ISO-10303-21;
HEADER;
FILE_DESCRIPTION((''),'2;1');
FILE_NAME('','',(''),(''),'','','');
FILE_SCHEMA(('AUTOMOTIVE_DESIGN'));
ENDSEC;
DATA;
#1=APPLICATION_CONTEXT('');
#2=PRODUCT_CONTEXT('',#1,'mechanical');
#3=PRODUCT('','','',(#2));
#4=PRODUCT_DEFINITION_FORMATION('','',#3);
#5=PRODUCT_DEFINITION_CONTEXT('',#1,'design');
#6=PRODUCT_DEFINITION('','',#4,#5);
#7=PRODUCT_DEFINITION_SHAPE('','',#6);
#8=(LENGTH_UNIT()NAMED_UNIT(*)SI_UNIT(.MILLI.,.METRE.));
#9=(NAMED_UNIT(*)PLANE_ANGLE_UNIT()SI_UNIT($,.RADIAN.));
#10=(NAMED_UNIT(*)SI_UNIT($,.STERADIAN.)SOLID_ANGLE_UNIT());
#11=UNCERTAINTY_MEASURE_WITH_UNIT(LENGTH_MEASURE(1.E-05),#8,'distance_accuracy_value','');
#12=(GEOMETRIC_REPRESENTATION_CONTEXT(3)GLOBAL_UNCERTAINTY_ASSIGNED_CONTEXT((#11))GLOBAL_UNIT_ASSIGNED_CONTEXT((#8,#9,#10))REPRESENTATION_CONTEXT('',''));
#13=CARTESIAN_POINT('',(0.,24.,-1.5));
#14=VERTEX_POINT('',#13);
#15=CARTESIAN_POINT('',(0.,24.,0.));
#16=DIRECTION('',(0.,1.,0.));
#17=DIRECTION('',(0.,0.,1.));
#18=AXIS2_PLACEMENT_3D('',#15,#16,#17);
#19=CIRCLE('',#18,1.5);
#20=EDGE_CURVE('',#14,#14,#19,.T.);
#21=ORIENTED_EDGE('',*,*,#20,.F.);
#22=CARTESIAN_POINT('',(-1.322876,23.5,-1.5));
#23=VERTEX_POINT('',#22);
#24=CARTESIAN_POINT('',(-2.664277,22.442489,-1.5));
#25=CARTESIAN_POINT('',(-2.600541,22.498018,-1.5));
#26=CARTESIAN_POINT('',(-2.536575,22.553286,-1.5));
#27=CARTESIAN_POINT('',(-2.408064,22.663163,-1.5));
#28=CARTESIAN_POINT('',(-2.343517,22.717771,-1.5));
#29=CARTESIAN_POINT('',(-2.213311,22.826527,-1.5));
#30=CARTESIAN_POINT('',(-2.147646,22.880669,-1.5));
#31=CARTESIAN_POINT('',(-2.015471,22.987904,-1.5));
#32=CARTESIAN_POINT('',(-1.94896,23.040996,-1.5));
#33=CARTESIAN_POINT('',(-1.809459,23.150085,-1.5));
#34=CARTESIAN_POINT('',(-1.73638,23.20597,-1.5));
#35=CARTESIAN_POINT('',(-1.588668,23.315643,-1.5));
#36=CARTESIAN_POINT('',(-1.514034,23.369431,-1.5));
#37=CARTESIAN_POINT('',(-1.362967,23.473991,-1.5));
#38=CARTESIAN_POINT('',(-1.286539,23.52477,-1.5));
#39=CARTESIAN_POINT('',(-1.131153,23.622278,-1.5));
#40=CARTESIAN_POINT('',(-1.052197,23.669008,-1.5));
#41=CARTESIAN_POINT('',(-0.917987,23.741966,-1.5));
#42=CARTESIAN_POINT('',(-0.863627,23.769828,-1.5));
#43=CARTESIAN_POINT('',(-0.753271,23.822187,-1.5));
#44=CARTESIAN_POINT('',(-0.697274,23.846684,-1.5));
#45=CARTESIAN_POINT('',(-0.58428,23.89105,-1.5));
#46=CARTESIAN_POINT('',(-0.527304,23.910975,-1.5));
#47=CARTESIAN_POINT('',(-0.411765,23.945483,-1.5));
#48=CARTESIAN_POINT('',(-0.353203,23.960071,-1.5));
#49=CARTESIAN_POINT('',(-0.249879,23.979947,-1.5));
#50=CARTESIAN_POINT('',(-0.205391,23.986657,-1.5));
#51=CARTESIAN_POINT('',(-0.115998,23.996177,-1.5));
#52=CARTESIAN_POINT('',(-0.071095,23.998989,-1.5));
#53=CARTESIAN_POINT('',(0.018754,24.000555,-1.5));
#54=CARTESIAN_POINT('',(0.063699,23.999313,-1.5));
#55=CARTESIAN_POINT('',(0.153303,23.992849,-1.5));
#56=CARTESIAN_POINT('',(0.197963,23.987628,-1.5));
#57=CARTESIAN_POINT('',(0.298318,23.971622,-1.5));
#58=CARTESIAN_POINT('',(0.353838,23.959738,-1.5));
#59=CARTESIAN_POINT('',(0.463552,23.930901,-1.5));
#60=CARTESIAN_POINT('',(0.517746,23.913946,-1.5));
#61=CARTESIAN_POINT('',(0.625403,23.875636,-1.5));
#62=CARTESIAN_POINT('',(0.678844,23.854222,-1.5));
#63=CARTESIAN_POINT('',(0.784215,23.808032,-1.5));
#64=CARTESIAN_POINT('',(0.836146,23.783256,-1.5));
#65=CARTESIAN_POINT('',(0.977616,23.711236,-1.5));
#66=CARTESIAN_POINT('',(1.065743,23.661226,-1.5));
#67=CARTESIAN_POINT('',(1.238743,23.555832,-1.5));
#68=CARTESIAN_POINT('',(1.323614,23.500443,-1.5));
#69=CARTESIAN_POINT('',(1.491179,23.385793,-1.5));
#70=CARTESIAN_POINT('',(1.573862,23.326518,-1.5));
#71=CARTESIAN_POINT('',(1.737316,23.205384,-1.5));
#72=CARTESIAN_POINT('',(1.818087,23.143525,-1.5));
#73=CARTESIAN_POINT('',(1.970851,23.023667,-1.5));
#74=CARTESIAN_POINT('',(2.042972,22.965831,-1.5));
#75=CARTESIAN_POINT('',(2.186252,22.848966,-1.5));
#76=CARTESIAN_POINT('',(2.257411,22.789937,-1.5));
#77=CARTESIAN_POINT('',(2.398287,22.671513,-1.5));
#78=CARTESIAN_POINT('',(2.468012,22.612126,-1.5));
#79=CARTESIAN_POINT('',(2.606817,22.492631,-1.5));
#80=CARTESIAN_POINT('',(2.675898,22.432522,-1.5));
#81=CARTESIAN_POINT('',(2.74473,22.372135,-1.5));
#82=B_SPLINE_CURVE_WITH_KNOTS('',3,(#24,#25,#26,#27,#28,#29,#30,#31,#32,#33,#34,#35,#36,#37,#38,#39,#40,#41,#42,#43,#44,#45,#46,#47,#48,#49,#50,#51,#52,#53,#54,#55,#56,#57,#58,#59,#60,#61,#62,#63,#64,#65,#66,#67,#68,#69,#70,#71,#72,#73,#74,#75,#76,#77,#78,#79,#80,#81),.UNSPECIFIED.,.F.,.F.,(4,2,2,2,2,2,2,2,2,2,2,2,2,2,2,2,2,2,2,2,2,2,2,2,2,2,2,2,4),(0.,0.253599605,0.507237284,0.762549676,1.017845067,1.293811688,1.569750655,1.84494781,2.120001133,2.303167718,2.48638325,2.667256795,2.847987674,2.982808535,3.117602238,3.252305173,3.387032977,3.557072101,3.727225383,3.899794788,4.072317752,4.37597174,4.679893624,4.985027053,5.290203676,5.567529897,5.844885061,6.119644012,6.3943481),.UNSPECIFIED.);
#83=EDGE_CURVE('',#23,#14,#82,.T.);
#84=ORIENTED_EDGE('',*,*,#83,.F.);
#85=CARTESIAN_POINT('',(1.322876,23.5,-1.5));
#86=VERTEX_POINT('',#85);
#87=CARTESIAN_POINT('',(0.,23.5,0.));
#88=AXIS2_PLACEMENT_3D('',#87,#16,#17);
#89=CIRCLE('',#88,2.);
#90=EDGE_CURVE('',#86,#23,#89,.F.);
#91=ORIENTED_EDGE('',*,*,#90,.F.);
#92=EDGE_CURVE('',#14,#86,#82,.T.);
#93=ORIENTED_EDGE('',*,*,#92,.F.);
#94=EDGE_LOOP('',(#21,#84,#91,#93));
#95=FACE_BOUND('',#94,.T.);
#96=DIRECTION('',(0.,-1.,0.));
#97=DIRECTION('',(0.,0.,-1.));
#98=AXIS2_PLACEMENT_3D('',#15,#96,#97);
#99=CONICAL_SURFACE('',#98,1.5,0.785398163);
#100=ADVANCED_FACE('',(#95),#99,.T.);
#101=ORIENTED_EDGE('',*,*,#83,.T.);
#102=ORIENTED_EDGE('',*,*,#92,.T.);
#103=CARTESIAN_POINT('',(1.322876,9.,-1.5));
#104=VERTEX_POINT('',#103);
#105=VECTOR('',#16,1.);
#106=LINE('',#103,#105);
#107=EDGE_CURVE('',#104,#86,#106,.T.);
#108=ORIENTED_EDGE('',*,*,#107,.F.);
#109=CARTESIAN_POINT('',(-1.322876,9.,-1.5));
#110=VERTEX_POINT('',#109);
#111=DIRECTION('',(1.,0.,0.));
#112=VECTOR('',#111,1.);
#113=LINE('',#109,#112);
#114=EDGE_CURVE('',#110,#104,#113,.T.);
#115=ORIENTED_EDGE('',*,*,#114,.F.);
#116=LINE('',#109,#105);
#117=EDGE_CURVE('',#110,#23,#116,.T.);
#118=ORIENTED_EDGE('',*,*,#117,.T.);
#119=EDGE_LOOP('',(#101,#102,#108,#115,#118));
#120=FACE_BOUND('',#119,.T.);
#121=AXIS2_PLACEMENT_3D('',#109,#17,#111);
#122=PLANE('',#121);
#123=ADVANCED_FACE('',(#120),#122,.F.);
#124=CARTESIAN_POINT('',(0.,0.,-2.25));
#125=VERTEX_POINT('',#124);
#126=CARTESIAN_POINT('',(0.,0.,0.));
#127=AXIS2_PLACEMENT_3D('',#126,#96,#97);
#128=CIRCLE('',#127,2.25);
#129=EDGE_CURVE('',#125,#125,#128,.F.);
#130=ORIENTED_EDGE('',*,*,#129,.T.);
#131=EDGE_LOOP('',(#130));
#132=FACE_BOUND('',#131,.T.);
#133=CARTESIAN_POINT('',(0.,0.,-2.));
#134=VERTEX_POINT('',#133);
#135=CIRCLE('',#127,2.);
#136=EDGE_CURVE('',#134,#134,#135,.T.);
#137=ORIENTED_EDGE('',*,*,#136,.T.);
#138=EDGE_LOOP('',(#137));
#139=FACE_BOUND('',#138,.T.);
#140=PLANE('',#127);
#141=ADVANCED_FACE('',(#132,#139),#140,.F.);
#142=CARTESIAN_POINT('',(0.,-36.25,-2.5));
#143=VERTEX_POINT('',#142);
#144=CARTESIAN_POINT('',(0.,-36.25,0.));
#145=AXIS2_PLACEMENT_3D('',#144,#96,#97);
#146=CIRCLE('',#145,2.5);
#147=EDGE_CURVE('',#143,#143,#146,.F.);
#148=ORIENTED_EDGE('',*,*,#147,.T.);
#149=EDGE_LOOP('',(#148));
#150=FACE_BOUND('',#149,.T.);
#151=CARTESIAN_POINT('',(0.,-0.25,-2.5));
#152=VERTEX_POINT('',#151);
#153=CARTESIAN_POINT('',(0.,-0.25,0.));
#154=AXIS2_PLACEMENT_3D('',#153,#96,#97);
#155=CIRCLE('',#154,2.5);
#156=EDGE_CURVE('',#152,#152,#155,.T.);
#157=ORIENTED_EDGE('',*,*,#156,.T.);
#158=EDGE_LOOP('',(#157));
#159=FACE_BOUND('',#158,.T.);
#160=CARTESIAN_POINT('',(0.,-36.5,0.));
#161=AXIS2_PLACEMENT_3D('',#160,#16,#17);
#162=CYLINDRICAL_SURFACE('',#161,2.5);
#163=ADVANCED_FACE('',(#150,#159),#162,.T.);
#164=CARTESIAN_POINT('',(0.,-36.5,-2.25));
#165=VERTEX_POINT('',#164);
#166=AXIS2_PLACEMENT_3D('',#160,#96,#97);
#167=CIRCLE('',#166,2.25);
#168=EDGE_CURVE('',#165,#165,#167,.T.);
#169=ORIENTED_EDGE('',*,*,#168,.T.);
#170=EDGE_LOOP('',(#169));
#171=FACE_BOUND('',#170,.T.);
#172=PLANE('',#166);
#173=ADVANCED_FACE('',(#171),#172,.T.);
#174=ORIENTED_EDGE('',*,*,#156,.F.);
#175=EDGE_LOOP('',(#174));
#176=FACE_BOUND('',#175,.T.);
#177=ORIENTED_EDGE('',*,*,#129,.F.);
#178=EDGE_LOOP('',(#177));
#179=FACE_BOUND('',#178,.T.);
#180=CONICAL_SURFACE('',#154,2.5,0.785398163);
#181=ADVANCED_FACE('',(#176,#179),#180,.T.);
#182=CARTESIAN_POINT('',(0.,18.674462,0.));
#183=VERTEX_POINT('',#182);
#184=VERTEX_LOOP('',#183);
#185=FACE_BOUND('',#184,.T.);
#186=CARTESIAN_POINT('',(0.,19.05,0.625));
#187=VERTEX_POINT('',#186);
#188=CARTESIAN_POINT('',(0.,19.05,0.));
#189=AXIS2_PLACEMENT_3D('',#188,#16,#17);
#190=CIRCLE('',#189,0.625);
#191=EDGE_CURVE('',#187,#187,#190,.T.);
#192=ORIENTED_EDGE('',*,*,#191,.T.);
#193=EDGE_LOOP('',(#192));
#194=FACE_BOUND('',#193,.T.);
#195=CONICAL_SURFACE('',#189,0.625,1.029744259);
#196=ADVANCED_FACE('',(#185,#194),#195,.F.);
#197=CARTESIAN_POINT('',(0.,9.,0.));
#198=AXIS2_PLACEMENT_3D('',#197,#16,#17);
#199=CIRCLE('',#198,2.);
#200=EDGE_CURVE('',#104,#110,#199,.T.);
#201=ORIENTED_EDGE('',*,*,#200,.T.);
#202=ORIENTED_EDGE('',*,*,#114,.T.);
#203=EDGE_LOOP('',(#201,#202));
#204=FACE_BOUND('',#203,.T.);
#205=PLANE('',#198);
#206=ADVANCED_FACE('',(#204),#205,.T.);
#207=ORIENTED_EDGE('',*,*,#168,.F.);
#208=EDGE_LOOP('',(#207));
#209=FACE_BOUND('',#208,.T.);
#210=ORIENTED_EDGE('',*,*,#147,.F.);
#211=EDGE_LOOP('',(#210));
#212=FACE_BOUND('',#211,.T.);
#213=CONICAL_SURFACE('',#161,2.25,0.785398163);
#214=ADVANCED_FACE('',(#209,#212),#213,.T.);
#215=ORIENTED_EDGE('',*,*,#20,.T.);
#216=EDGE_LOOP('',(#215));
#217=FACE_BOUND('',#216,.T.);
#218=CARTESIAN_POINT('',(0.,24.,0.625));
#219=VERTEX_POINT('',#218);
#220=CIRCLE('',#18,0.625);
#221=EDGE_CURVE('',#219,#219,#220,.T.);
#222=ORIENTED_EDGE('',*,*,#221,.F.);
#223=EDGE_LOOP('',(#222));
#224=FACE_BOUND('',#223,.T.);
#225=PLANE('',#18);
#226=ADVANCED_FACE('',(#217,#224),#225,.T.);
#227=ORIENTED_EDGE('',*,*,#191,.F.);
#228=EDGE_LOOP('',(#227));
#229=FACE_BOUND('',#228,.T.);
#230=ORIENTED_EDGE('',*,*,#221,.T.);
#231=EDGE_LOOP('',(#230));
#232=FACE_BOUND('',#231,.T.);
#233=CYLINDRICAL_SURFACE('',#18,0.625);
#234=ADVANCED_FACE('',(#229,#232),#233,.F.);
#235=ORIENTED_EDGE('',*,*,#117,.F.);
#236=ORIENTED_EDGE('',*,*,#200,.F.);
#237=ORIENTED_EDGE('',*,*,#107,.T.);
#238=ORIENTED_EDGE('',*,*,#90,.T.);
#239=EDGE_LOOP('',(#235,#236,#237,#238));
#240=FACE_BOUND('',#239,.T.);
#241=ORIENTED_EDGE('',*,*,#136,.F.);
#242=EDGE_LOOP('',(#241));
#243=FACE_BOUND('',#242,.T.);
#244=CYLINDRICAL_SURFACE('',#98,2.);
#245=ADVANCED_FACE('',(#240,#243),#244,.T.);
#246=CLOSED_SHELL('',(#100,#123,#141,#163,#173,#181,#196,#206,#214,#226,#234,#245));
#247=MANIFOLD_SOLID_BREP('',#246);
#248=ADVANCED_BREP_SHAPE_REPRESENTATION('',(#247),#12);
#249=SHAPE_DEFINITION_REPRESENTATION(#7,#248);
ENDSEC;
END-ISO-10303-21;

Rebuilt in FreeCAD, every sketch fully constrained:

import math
import FreeCAD as App
import Part
import Sketcher
from FreeCAD import Vector
Q = App.Units.Quantity


def edges_at(feature, points):
    """Names of the edges that pass closest to the given points."""
    edges = feature.Shape.Edges
    near = lambda p: min(range(len(edges)), key=lambda i: edges[i].distToShape(Part.Vertex(*p))[0])
    return sorted({f"Edge{near(p) + 1}" for p in points})

doc = App.newDocument("Part")
body = doc.addObject("PartDesign::Body", "Body")

sketch1 = body.newObject("Sketcher::SketchObject", "Sketch")
sketch1.AttachmentSupport = (doc.getObject("XZ_Plane"), [""])
sketch1.MapMode = "FlatFace"
sketch1.addGeometry(Part.Circle(Vector(0, 0, 0), Vector(0, 0, 1), 2), False)
sketch1.addConstraint(Sketcher.Constraint("Coincident", 0, 3, -1, 1))
sketch1.addConstraint(Sketcher.Constraint("Diameter", 0, Q("4 mm")))
pad1 = body.newObject("PartDesign::Pad", "Pad")
pad1.Profile = sketch1
pad1.Length = 24
pad1.Reversed = True

sketch2 = body.newObject("Sketcher::SketchObject", "Sketch001")
sketch2.AttachmentSupport = (doc.getObject("XZ_Plane"), [""])
sketch2.MapMode = "FlatFace"
sketch2.addGeometry(Part.Circle(Vector(0, 0, 0), Vector(0, 0, 1), 2.5), False)
sketch2.addConstraint(Sketcher.Constraint("Coincident", 0, 3, -1, 1))
sketch2.addConstraint(Sketcher.Constraint("Diameter", 0, Q("5 mm")))
pad2 = body.newObject("PartDesign::Pad", "Pad001")
pad2.Profile = sketch2
pad2.Length = 36.5
doc.recompute()

chamfer = body.newObject("PartDesign::Chamfer", "Chamfer")
chamfer.Base = (pad2, edges_at(pad2, [(0, 24, -2)]))
chamfer.Size = 0.5

sketch3 = body.newObject("Sketcher::SketchObject", "Sketch002")
sketch3.AttachmentSupport = (doc.getObject("XZ_Plane"), [""])
sketch3.MapMode = "FlatFace"
sketch3.AttachmentOffset = App.Placement(Vector(0, 0, -24), App.Rotation())
sketch3.addGeometry(Part.Circle(Vector(0, 0, 0), Vector(0, 0, 1), 0.6), False)
sketch3.addConstraint(Sketcher.Constraint("Coincident", 0, 3, -1, 1))
sketch3.addConstraint(Sketcher.Constraint("Diameter", 0, Q("1.25 mm")))
doc.recompute()
hole = body.newObject("PartDesign::Hole", "Hole")
hole.Profile = sketch3
hole.ThreadType = "None"
hole.Diameter = 1.25
hole.DepthType = "Dimension"
hole.Depth = 4.95
hole.DrillPoint = "Angled"
hole.DrillPointAngle = 118
hole.Reversed = True

sketch4 = body.newObject("Sketcher::SketchObject", "Sketch003")
sketch4.AttachmentSupport = (doc.getObject("XZ_Plane"), [""])
sketch4.MapMode = "FlatFace"
sketch4.AttachmentOffset = App.Placement(Vector(0, 0, -9), App.Rotation())
sketch4.addGeometry(Part.LineSegment(Vector(-1.3, -1.5, 0), Vector(1.3, -1.5, 0)), False)
sketch4.addGeometry(Part.ArcOfCircle(Part.Circle(Vector(0, 0, 0), Vector(0, 0, 1), 2), math.radians(-131), math.radians(-49)), False)
sketch4.addConstraint(Sketcher.Constraint("Coincident", 0, 1, 1, 1))
sketch4.addConstraint(Sketcher.Constraint("Coincident", 1, 2, 0, 2))
sketch4.addConstraint(Sketcher.Constraint("Horizontal", 0))
sketch4.addConstraint(Sketcher.Constraint("Coincident", 1, 3, -1, 1))
sketch4.addConstraint(Sketcher.Constraint("Radius", 1, Q("2 mm")))
sketch4.addConstraint(Sketcher.Constraint("DistanceY", 0, 1, -1, 1, Q("1.5 mm")))
pocket1 = body.newObject("PartDesign::Pocket", "Pocket")
pocket1.Profile = sketch4
pocket1.Length = 15
doc.recompute()

chamfer2 = body.newObject("PartDesign::Chamfer", "Chamfer001")
chamfer2.Base = (pocket1, edges_at(pocket1, [(0, 0, 2.5), (0, -36.5, 2.5)]))
chamfer2.Size = 0.25

doc.recompute()
